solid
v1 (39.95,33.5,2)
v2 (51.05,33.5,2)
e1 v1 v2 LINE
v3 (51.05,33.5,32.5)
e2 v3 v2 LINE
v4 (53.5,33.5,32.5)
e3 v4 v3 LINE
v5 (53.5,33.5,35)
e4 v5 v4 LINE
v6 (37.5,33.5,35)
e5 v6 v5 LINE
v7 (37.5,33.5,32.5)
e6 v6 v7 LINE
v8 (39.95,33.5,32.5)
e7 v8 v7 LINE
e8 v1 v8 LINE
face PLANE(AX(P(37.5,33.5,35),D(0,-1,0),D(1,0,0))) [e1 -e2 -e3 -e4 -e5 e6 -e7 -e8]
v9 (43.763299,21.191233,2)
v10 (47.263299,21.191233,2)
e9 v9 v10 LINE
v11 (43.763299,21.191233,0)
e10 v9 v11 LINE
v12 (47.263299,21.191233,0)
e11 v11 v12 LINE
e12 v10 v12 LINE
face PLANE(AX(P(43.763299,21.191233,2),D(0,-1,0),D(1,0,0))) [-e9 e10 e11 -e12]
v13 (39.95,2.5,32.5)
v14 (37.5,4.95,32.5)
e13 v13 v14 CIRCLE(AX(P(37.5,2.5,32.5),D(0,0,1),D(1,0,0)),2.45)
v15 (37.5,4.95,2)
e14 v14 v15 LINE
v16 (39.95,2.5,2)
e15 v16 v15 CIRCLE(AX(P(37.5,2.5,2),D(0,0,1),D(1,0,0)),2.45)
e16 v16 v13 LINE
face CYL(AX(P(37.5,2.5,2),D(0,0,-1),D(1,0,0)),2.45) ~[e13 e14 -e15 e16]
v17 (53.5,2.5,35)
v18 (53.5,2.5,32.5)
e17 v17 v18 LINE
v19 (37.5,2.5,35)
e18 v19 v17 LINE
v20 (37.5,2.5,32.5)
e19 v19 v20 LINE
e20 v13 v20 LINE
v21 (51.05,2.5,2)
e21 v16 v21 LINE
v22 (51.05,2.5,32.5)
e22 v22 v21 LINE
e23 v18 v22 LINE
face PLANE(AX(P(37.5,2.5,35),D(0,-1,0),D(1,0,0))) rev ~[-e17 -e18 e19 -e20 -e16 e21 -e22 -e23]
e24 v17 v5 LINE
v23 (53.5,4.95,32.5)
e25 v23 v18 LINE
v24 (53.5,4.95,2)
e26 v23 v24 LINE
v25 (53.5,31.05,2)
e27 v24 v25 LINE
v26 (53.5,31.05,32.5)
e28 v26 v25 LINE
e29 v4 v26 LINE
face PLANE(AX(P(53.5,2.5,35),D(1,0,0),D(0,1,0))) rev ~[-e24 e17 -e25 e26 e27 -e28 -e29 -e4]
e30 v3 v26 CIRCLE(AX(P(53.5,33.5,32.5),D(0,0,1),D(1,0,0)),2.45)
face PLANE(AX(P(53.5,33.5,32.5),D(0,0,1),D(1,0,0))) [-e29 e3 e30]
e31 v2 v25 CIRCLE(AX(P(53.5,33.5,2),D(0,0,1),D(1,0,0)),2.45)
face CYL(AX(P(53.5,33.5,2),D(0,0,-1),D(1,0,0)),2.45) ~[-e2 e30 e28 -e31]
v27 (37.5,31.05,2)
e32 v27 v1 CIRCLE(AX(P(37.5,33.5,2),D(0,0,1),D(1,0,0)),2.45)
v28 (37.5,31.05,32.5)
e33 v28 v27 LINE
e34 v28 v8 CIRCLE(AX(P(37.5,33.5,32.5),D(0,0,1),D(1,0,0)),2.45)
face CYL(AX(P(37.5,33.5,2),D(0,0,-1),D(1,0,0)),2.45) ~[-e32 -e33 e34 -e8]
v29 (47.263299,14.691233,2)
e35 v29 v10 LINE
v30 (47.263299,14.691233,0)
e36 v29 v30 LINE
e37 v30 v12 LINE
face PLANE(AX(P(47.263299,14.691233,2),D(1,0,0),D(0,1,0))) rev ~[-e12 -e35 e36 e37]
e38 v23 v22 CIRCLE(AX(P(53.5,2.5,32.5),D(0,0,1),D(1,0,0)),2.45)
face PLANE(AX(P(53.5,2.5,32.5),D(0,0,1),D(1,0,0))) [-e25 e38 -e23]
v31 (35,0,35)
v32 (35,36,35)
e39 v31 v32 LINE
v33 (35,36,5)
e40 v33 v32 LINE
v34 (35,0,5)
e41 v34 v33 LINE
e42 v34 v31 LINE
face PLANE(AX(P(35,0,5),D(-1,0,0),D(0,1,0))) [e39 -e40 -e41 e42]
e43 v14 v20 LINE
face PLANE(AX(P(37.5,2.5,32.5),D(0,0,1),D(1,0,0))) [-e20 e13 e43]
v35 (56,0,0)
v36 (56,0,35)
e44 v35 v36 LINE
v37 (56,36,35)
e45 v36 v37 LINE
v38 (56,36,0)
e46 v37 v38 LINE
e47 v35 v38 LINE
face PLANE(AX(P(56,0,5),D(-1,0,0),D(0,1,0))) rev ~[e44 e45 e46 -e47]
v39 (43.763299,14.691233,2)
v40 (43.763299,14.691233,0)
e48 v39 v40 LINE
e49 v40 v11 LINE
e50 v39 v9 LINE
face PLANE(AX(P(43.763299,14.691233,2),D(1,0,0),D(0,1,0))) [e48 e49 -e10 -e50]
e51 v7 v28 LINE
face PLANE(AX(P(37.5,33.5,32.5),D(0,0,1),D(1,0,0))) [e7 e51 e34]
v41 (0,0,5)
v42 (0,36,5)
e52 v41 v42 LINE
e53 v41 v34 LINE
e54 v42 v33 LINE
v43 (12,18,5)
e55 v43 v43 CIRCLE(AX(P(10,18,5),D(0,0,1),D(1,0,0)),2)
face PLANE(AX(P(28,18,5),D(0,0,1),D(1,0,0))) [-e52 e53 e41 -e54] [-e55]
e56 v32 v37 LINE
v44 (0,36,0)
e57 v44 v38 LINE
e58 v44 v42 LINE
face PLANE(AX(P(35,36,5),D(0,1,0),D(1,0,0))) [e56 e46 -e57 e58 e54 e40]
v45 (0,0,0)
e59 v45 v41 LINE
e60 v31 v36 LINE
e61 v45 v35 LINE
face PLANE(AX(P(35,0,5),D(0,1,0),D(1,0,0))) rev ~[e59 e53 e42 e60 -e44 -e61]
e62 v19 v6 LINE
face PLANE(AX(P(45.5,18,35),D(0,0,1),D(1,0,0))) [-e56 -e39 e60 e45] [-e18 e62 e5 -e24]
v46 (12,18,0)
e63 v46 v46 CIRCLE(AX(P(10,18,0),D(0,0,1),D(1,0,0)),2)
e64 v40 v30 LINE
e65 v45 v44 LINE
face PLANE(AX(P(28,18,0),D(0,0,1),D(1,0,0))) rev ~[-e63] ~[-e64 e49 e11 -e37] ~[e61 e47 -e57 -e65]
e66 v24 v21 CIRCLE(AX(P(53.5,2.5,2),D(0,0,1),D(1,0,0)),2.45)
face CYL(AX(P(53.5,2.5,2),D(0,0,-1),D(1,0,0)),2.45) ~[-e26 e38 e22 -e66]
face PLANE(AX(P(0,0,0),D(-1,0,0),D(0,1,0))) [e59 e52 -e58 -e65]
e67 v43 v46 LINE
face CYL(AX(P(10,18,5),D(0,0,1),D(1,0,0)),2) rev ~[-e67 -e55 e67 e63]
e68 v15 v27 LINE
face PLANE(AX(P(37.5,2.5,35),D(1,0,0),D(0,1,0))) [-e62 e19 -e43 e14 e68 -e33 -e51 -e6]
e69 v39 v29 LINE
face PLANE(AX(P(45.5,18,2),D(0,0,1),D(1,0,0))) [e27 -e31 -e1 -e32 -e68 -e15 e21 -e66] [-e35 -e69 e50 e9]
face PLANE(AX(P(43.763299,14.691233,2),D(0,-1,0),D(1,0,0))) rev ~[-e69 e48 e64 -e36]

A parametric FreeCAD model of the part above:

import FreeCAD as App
import Part
import Sketcher
Q = App.Units.Quantity


def add_polygon(sketch, points):
    """Adds a closed chain of lines whose ends are joined by coincident constraints."""
    first, n = sketch.GeometryCount, len(points)
    for a, b in zip(points, points[1:] + points[:1]):
        sketch.addGeometry(Part.LineSegment(App.Vector(*a, 0), App.Vector(*b, 0)), False)
    for i in range(n):
        sketch.addConstraint(Sketcher.Constraint("Coincident", first + i, 2, first + (i + 1) % n, 1))

doc = App.newDocument("Part")
body = doc.addObject("PartDesign::Body", "Body")

# Sketch on XY plane
sketch1 = body.newObject("Sketcher::SketchObject", "Sketch")
sketch1.AttachmentSupport = (doc.getObject("XY_Plane"), [""])
sketch1.MapMode = "FlatFace"
add_polygon(sketch1, [(0, 36), (0, 0), (56, 0), (56, 36)])  # lines 0-3
sketch1.addConstraint([
    Sketcher.Constraint("Vertical", 0),
    Sketcher.Constraint("Horizontal", 1),
    Sketcher.Constraint("Vertical", 2),
    Sketcher.Constraint("Horizontal", 3),
    Sketcher.Constraint("Coincident", 0, 2, -1, 1),
    Sketcher.Constraint("DistanceX", 1, 1, 1, 2, Q("56 mm")),
    Sketcher.Constraint("DistanceY", 0, 2, 0, 1, Q("36 mm")),
])
pad1 = body.newObject("PartDesign::Pad", "Pad")
pad1.Profile = sketch1
pad1.Length = 5

# Sketch on XY plane
sketch2 = body.newObject("Sketcher::SketchObject", "Sketch001")
sketch2.AttachmentSupport = (doc.getObject("XY_Plane"), [""])
sketch2.MapMode = "FlatFace"
sketch2.AttachmentOffset = App.Placement(App.Vector(0, 0, 5), App.Rotation())
add_polygon(sketch2, [(35, 36), (35, 0), (56, 0), (56, 36)])  # lines 0-3
sketch2.addConstraint([
    Sketcher.Constraint("Vertical", 0),
    Sketcher.Constraint("Horizontal", 1),
    Sketcher.Constraint("Vertical", 2),
    Sketcher.Constraint("Horizontal", 3),
    Sketcher.Constraint("PointOnObject", 0, 2, -1),
    Sketcher.Constraint("DistanceX", 1, 1, 1, 2, Q("21 mm")),
    Sketcher.Constraint("DistanceY", 0, 2, 0, 1, Q("36 mm")),
    Sketcher.Constraint("DistanceX", -1, 1, 0, 2, Q("35 mm")),
])
pad2 = body.newObject("PartDesign::Pad", "Pad001")
pad2.Profile = sketch2
pad2.Length = 30

# Sketch on XY plane
sketch3 = body.newObject("Sketcher::SketchObject", "Sketch002")
sketch3.AttachmentSupport = (doc.getObject("XY_Plane"), [""])
sketch3.MapMode = "FlatFace"
sketch3.AttachmentOffset = App.Placement(App.Vector(0, 0, 35), App.Rotation())
add_polygon(sketch3, [(38, 34), (38, 2), (54, 2), (54, 34)])  # lines 0-3
sketch3.addConstraint([
    Sketcher.Constraint("Vertical", 0),
    Sketcher.Constraint("Horizontal", 1),
    Sketcher.Constraint("Vertical", 2),
    Sketcher.Constraint("Horizontal", 3),
    Sketcher.Constraint("DistanceX", 1, 1, 1, 2, Q("16 mm")),
    Sketcher.Constraint("DistanceY", 0, 2, 0, 1, Q("31 mm")),
    Sketcher.Constraint("DistanceX", -1, 1, 0, 2, Q("37.5 mm")),
    Sketcher.Constraint("DistanceY", -1, 1, 0, 2, Q("2.5 mm")),
])
pocket1 = body.newObject("PartDesign::Pocket", "Pocket")
pocket1.Profile = sketch3
pocket1.Length = 33

# Sketch on XY plane
sketch4 = body.newObject("Sketcher::SketchObject", "Sketch003")
sketch4.AttachmentSupport = (doc.getObject("XY_Plane"), [""])
sketch4.MapMode = "FlatFace"
sketch4.AttachmentOffset = App.Placement(App.Vector(0, 0, 2), App.Rotation())
sketch4.addGeometry([
    Part.Circle(App.Vector(37.5, 33.5, 0), App.Vector(0, 0, 1), 2.5),
    Part.Circle(App.Vector(53.5, 33.5, 0), App.Vector(0, 0, 1), 2.5),
    Part.Circle(App.Vector(37.5, 2.5, 0), App.Vector(0, 0, 1), 2.5),
    Part.Circle(App.Vector(53.5, 2.5, 0), App.Vector(0, 0, 1), 2.5),
], False)
sketch4.addConstraint([
    Sketcher.Constraint("Equal", 0, 1),
    Sketcher.Constraint("Equal", 1, 2),
    Sketcher.Constraint("Equal", 2, 3),
    Sketcher.Constraint("Horizontal", 0, 3, 1, 3),
    Sketcher.Constraint("Horizontal", 2, 3, 3, 3),
    Sketcher.Constraint("Vertical", 0, 3, 2, 3),
    Sketcher.Constraint("Vertical", 1, 3, 3, 3),
    Sketcher.Constraint("Diameter", 0, Q("4.9 mm")),
    Sketcher.Constraint("DistanceX", 0, 3, 1, 3, Q("16 mm")),
    Sketcher.Constraint("DistanceY", 2, 3, 0, 3, Q("31 mm")),
    Sketcher.Constraint("DistanceX", -1, 1, 0, 3, Q("37.5 mm")),
    Sketcher.Constraint("DistanceY", -1, 1, 0, 3, Q("33.5 mm")),
])
pad3 = body.newObject("PartDesign::Pad", "Pad002")
pad3.Profile = sketch4
pad3.Length = 30.5

# Sketch on XY plane
sketch5 = body.newObject("Sketcher::SketchObject", "Sketch004")
sketch5.AttachmentSupport = (doc.getObject("XY_Plane"), [""])
sketch5.MapMode = "FlatFace"
sketch5.AttachmentOffset = App.Placement(App.Vector(0, 0, 2), App.Rotation())
add_polygon(sketch5, [(43.8, 21.2), (43.8, 14.7), (47.3, 14.7), (47.3, 21.2)])  # lines 0-3
sketch5.addConstraint([
    Sketcher.Constraint("Vertical", 0),
    Sketcher.Constraint("Horizontal", 1),
    Sketcher.Constraint("Vertical", 2),
    Sketcher.Constraint("Horizontal", 3),
    Sketcher.Constraint("DistanceX", 1, 1, 1, 2, Q("3.5 mm")),
    Sketcher.Constraint("DistanceY", 0, 2, 0, 1, Q("6.5 mm")),
    Sketcher.Constraint("DistanceX", -1, 1, 0, 2, Q("43.763299 mm")),
    Sketcher.Constraint("DistanceY", -1, 1, 0, 2, Q("14.691233 mm")),
])
pocket2 = body.newObject("PartDesign::Pocket", "Pocket001")
pocket2.Profile = sketch5
pocket2.Length = 2

# Sketch on XY plane
sketch6 = body.newObject("Sketcher::SketchObject", "Sketch005")
sketch6.AttachmentSupport = (doc.getObject("XY_Plane"), [""])
sketch6.MapMode = "FlatFace"
sketch6.AttachmentOffset = App.Placement(App.Vector(0, 0, 5), App.Rotation())
sketch6.addGeometry(Part.Circle(App.Vector(10, 18, 0), App.Vector(0, 0, 1), 2), False)
sketch6.addConstraint([
    Sketcher.Constraint("Diameter", 0, Q("4 mm")),
    Sketcher.Constraint("DistanceX", -1, 1, 0, 3, Q("10 mm")),
    Sketcher.Constraint("DistanceY", -1, 1, 0, 3, Q("18 mm")),
])
pocket3 = body.newObject("PartDesign::Pocket", "Pocket002")
pocket3.Profile = sketch6
pocket3.Length = 5

doc.recompute()
